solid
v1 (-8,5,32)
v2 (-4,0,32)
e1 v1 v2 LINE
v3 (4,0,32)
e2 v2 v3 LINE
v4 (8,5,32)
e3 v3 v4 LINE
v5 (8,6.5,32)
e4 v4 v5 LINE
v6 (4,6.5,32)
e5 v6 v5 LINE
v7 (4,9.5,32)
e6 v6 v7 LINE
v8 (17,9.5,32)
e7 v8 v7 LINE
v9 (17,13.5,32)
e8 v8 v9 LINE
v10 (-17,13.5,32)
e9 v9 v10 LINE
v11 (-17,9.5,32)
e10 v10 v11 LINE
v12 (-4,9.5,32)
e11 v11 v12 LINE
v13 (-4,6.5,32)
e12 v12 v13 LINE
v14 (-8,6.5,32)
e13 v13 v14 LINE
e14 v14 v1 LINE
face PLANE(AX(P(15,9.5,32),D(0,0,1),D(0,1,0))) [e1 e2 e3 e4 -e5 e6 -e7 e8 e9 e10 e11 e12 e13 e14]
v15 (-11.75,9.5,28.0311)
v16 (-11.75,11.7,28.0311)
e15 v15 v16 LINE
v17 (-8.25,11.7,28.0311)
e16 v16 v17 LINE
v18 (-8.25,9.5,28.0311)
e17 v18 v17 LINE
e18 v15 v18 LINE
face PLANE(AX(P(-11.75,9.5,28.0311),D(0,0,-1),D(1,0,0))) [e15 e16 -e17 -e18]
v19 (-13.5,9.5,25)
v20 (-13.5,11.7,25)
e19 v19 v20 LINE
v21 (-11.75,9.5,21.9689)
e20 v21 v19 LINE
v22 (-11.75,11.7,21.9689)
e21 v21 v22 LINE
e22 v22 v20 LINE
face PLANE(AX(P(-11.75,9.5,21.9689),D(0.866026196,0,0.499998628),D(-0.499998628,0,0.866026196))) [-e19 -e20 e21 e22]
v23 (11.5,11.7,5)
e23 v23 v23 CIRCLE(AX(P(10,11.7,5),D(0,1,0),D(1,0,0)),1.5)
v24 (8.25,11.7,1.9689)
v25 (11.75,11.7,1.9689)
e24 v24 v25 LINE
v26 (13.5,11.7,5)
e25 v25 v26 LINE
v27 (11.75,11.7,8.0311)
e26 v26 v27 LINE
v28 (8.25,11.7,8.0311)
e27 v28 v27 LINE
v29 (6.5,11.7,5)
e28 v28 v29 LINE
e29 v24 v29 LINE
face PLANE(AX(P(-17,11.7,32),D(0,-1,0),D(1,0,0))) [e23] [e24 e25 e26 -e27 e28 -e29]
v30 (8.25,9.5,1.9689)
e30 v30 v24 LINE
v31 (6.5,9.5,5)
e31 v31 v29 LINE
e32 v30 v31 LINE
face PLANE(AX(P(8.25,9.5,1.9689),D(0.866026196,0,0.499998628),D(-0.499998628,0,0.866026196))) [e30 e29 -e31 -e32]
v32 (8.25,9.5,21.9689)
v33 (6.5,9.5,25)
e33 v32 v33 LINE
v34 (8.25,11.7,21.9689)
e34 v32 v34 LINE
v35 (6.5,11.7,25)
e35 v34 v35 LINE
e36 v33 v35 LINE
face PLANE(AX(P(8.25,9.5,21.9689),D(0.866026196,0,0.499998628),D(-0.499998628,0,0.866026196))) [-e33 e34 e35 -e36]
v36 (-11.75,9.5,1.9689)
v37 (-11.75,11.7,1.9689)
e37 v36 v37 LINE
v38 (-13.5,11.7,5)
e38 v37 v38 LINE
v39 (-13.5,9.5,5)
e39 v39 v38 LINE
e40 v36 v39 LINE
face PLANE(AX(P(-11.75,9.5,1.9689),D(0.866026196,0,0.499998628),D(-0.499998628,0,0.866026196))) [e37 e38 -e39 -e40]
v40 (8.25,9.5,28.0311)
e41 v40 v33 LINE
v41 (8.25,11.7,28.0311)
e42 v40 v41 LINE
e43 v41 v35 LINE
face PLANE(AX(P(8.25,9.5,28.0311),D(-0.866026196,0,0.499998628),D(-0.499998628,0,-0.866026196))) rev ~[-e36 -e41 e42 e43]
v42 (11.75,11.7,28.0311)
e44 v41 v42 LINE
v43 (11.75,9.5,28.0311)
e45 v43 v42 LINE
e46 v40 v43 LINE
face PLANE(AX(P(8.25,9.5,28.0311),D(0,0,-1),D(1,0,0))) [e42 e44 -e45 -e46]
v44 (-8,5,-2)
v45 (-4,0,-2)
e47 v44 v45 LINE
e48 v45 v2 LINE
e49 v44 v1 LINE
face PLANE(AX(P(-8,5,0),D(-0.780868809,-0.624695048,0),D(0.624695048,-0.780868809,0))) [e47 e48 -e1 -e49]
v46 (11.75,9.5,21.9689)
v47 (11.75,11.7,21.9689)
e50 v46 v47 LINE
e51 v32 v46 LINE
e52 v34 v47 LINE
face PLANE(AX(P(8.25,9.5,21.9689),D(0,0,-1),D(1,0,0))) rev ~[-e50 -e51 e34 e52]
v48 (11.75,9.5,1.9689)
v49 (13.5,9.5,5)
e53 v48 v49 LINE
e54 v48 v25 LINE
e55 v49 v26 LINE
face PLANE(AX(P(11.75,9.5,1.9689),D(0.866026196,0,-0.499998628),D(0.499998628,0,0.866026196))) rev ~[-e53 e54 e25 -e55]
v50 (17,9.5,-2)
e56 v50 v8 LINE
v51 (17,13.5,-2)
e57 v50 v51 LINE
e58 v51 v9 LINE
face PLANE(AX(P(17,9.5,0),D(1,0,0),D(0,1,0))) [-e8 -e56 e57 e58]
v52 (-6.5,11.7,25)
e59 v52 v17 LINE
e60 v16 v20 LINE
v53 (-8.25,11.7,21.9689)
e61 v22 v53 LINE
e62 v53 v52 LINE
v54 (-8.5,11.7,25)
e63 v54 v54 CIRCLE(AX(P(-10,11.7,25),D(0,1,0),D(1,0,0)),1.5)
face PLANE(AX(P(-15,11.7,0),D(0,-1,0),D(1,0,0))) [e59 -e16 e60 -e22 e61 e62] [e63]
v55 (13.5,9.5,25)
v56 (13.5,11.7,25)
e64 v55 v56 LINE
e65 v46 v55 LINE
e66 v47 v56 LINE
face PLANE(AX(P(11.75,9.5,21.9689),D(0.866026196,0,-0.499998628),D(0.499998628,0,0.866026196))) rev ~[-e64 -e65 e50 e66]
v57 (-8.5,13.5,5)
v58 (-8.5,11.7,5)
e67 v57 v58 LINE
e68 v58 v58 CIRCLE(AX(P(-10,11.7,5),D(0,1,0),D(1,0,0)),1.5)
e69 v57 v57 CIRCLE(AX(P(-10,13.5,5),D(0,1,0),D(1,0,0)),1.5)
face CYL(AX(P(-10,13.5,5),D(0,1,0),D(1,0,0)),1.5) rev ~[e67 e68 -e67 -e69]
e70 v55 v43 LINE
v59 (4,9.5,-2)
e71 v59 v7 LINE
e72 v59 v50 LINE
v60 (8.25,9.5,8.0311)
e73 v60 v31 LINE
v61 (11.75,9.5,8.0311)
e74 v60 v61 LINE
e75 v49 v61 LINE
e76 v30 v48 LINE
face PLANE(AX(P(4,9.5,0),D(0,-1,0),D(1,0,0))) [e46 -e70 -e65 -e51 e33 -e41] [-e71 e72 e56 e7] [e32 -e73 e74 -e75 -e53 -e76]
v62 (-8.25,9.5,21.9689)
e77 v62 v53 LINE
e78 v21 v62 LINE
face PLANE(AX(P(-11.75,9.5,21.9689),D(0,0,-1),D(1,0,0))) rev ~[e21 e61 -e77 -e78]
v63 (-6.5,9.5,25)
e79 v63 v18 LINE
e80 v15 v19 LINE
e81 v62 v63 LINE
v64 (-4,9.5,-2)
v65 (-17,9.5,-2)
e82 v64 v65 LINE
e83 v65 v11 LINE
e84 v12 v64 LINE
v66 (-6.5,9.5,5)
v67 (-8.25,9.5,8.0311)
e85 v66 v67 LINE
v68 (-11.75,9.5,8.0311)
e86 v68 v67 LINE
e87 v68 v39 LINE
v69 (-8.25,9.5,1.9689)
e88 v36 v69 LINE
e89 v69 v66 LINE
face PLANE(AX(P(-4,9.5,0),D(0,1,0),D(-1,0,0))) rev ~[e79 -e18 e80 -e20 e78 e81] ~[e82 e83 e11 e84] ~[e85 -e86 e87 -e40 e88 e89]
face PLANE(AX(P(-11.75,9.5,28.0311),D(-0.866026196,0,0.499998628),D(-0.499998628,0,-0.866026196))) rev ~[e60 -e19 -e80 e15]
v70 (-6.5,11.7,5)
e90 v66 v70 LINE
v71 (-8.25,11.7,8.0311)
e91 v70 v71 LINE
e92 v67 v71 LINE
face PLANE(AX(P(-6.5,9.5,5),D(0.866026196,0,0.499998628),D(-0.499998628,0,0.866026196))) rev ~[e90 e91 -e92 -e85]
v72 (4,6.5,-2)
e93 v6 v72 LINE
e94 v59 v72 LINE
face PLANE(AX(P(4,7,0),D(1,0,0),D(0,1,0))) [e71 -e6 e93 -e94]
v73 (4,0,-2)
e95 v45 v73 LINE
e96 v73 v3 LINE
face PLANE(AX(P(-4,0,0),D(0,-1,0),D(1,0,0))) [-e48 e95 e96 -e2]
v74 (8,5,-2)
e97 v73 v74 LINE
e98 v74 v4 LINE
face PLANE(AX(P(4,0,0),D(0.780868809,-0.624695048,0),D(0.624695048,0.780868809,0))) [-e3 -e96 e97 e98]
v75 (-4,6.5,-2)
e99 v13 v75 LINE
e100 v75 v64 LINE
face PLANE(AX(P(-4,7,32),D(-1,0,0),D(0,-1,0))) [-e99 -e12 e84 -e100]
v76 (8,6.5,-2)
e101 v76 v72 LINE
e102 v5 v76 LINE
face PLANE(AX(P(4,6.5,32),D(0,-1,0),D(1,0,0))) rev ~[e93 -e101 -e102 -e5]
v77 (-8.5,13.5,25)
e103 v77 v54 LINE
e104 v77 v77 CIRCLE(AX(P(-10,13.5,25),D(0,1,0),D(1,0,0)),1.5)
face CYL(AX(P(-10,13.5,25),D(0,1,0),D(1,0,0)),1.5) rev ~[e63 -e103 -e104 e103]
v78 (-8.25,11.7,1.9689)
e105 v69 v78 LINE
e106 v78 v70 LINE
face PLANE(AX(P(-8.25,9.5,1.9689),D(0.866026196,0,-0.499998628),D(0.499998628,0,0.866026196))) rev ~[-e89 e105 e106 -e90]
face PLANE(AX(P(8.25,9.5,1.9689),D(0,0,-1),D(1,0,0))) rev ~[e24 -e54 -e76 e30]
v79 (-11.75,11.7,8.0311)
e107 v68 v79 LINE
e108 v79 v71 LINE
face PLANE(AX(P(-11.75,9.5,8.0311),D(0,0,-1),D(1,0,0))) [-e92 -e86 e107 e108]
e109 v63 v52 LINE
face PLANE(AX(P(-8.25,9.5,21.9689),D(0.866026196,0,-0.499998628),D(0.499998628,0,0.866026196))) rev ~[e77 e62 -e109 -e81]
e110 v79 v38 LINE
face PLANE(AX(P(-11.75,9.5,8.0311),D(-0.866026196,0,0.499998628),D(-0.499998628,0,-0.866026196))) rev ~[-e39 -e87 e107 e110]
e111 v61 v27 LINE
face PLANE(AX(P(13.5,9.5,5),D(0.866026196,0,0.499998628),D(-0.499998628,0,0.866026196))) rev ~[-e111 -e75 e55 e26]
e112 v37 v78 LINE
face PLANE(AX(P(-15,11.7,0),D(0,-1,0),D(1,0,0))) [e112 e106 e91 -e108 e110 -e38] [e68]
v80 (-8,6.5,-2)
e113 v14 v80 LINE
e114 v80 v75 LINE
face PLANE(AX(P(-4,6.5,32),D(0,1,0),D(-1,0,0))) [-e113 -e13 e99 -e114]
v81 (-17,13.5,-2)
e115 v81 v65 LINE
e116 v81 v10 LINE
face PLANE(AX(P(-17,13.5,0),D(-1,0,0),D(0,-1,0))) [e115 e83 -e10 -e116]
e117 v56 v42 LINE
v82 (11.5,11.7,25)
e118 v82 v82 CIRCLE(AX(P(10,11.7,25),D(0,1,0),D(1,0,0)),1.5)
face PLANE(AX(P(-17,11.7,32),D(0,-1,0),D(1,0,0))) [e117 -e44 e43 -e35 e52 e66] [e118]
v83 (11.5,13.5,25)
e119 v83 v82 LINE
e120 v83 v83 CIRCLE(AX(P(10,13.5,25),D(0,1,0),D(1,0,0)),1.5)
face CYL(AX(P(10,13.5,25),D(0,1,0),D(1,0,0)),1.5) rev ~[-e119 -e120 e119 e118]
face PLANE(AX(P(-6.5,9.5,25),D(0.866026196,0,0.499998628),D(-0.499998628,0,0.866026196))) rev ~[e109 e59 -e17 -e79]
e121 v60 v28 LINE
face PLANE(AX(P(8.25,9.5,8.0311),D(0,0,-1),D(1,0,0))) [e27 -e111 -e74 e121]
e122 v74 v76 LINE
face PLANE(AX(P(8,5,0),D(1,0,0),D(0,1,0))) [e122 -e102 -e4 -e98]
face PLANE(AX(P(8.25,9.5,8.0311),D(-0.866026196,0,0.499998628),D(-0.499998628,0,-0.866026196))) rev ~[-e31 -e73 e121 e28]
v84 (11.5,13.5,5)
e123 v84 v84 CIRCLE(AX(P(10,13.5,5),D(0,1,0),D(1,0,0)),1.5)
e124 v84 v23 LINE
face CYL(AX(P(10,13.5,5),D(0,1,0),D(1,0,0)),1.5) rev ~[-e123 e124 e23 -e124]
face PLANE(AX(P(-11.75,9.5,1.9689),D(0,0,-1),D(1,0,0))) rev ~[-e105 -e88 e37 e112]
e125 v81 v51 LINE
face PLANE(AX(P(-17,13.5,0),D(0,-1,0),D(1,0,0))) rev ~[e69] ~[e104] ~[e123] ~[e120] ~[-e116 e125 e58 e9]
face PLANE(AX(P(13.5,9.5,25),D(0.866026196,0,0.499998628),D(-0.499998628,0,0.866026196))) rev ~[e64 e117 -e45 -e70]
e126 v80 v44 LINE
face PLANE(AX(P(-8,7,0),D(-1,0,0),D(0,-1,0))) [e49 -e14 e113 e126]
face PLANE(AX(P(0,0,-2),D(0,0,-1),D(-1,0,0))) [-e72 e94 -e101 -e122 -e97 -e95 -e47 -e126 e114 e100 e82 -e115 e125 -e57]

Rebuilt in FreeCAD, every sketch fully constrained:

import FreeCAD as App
import Part
import Sketcher

V = App.Vector
Q = App.Units.Quantity

doc = App.newDocument("Part")
body = doc.addObject("PartDesign::Body", "Body")

sketch1 = doc.addObject("Sketcher::SketchObject", "Sketch")
body.addObject(sketch1)
sketch1.AttachmentSupport = (doc.XY_Plane, [""])
sketch1.MapMode = "FlatFace"
sketch1.addGeometry(Part.LineSegment(V(-4, 0, 0), V(4, 0, 0)), False)
sketch1.addGeometry(Part.LineSegment(V(4, 0, 0), V(8, 5, 0)), False)
sketch1.addGeometry(Part.LineSegment(V(8, 5, 0), V(8, 7, 0)), False)
sketch1.addGeometry(Part.LineSegment(V(8, 7, 0), V(4, 7, 0)), False)
sketch1.addGeometry(Part.LineSegment(V(4, 7, 0), V(4, 9.5, 0)), False)
sketch1.addGeometry(Part.LineSegment(V(4, 9.5, 0), V(15, 9.5, 0)), False)
sketch1.addGeometry(Part.LineSegment(V(15, 9.5, 0), V(15, 13.5, 0)), False)
sketch1.addGeometry(Part.LineSegment(V(15, 13.5, 0), V(-15, 13.5, 0)), False)
sketch1.addGeometry(Part.LineSegment(V(-15, 13.5, 0), V(-15, 9.5, 0)), False)
sketch1.addGeometry(Part.LineSegment(V(-15, 9.5, 0), V(-4, 9.5, 0)), False)
sketch1.addGeometry(Part.LineSegment(V(-4, 9.5, 0), V(-4, 7, 0)), False)
sketch1.addGeometry(Part.LineSegment(V(-4, 7, 0), V(-8, 7, 0)), False)
sketch1.addGeometry(Part.LineSegment(V(-8, 7, 0), V(-8, 5, 0)), False)
sketch1.addGeometry(Part.LineSegment(V(-8, 5, 0), V(-4, 0, 0)), False)
sketch1.addConstraint(Sketcher.Constraint("Coincident", 0, 2, 1, 1))
sketch1.addConstraint(Sketcher.Constraint("Coincident", 1, 2, 2, 1))
sketch1.addConstraint(Sketcher.Constraint("Coincident", 2, 2, 3, 1))
sketch1.addConstraint(Sketcher.Constraint("Coincident", 3, 2, 4, 1))
sketch1.addConstraint(Sketcher.Constraint("Coincident", 4, 2, 5, 1))
sketch1.addConstraint(Sketcher.Constraint("Coincident", 5, 2, 6, 1))
sketch1.addConstraint(Sketcher.Constraint("Coincident", 6, 2, 7, 1))
sketch1.addConstraint(Sketcher.Constraint("Coincident", 7, 2, 8, 1))
sketch1.addConstraint(Sketcher.Constraint("Coincident", 8, 2, 9, 1))
sketch1.addConstraint(Sketcher.Constraint("Coincident", 9, 2, 10, 1))
sketch1.addConstraint(Sketcher.Constraint("Coincident", 10, 2, 11, 1))
sketch1.addConstraint(Sketcher.Constraint("Coincident", 11, 2, 12, 1))
sketch1.addConstraint(Sketcher.Constraint("Coincident", 12, 2, 13, 1))
sketch1.addConstraint(Sketcher.Constraint("Coincident", 13, 2, 0, 1))
sketch1.addConstraint(Sketcher.Constraint("Horizontal", 0))
sketch1.addConstraint(Sketcher.Constraint("Vertical", 2))
sketch1.addConstraint(Sketcher.Constraint("Horizontal", 3))
sketch1.addConstraint(Sketcher.Constraint("Vertical", 4))
sketch1.addConstraint(Sketcher.Constraint("Horizontal", 5))
sketch1.addConstraint(Sketcher.Constraint("Vertical", 6))
sketch1.addConstraint(Sketcher.Constraint("Horizontal", 7))
sketch1.addConstraint(Sketcher.Constraint("Vertical", 8))
sketch1.addConstraint(Sketcher.Constraint("Horizontal", 9))
sketch1.addConstraint(Sketcher.Constraint("Vertical", 10))
sketch1.addConstraint(Sketcher.Constraint("Horizontal", 11))
sketch1.addConstraint(Sketcher.Constraint("Vertical", 12))
sketch1.addConstraint(Sketcher.Constraint("Symmetric", 0, 2, 13, 2, -1, 1))
sketch1.addConstraint(Sketcher.Constraint("Symmetric", 5, 2, 8, 2, -2))
sketch1.addConstraint(Sketcher.Constraint("Symmetric", 3, 2, 10, 2, -2))
sketch1.addConstraint(Sketcher.Constraint("Symmetric", 1, 2, 12, 2, -2))
sketch1.addConstraint(Sketcher.Constraint("Vertical", 0, 2, 3, 2))
sketch1.addConstraint(Sketcher.Constraint("Equal", 11, 6))
sketch1.addConstraint(Sketcher.Constraint("DistanceX", 3, 2, 3, 1, Q("4 mm")))
sketch1.addConstraint(Sketcher.Constraint("DistanceX", -1, 1, 0, 2, Q("4 mm")))
sketch1.addConstraint(Sketcher.Constraint("DistanceX", 5, 1, 5, 2, Q("11 mm")))
sketch1.addConstraint(Sketcher.Constraint("DistanceY", 2, 1, 2, 2, Q("2 mm")))
sketch1.addConstraint(Sketcher.Constraint("DistanceY", 4, 1, 4, 2, Q("2.5 mm")))
sketch1.addConstraint(Sketcher.Constraint("DistanceY", -1, 1, 1, 2, Q("5 mm")))
pad1 = doc.addObject("PartDesign::Pad", "Pad")
body.addObject(pad1)
pad1.Profile = sketch1
pad1.Length = 30

sketch2 = doc.addObject("Sketcher::SketchObject", "Sketch001")
body.addObject(sketch2)
sketch2.AttachmentSupport = (doc.XZ_Plane, [""])
sketch2.MapMode = "FlatFace"
sketch2.AttachmentOffset = App.Placement(V(0, 0, -13.5), App.Rotation())
sketch2.addGeometry(Part.Circle(V(-10, 5, 0), V(0, 0, 1), 1.5), False)
sketch2.addGeometry(Part.Circle(V(-10, 25, 0), V(0, 0, 1), 1.5), False)
sketch2.addGeometry(Part.Circle(V(10, 25, 0), V(0, 0, 1), 1.5), False)
sketch2.addGeometry(Part.Circle(V(10, 5, 0), V(0, 0, 1), 1.5), False)
sketch2.addConstraint(Sketcher.Constraint("Equal", 0, 1))
sketch2.addConstraint(Sketcher.Constraint("Equal", 1, 2))
sketch2.addConstraint(Sketcher.Constraint("Equal", 2, 3))
sketch2.addConstraint(Sketcher.Constraint("Symmetric", 1, 3, 2, 3, -2))
sketch2.addConstraint(Sketcher.Constraint("Symmetric", 0, 3, 3, 3, -2))
sketch2.addConstraint(Sketcher.Constraint("Vertical", 0, 3, 1, 3))
sketch2.addConstraint(Sketcher.Constraint("Diameter", 0, Q("3 mm")))
sketch2.addConstraint(Sketcher.Constraint("DistanceX", 0, 3, -1, 1, Q("10 mm")))
sketch2.addConstraint(Sketcher.Constraint("DistanceY", -1, 1, 0, 3, Q("5 mm")))
sketch2.addConstraint(Sketcher.Constraint("DistanceY", -1, 1, 1, 3, Q("25 mm")))
pocket1 = doc.addObject("PartDesign::Pocket", "Pocket")
body.addObject(pocket1)
pocket1.Profile = sketch2
pocket1.Length = 5
pocket1.Reversed = True

sketch3 = doc.addObject("Sketcher::SketchObject", "Sketch002")
body.addObject(sketch3)
sketch3.AttachmentSupport = (doc.XZ_Plane, [""])
sketch3.MapMode = "FlatFace"
sketch3.AttachmentOffset = App.Placement(V(0, 0, -9.5), App.Rotation())
sketch3.addGeometry(Part.LineSegment(V(-8.5, 7.5981, 0), V(-11.5, 7.5981, 0)), False)
sketch3.addGeometry(Part.LineSegment(V(-11.5, 7.5981, 0), V(-13, 5, 0)), False)
sketch3.addGeometry(Part.LineSegment(V(-13, 5, 0), V(-11.5, 2.4019, 0)), False)
sketch3.addGeometry(Part.LineSegment(V(-11.5, 2.4019, 0), V(-8.5, 2.4019, 0)), False)
sketch3.addGeometry(Part.LineSegment(V(-8.5, 2.4019, 0), V(-7, 5, 0)), False)
sketch3.addGeometry(Part.LineSegment(V(-7, 5, 0), V(-8.5, 7.5981, 0)), False)
sketch3.addGeometry(Part.LineSegment(V(-8.5, 27.5981, 0), V(-11.5, 27.5981, 0)), False)
sketch3.addGeometry(Part.LineSegment(V(-11.5, 27.5981, 0), V(-13, 25, 0)), False)
sketch3.addGeometry(Part.LineSegment(V(-13, 25, 0), V(-11.5, 22.4019, 0)), False)
sketch3.addGeometry(Part.LineSegment(V(-11.5, 22.4019, 0), V(-8.5, 22.4019, 0)), False)
sketch3.addGeometry(Part.LineSegment(V(-8.5, 22.4019, 0), V(-7, 25, 0)), False)
sketch3.addGeometry(Part.LineSegment(V(-7, 25, 0), V(-8.5, 27.5981, 0)), False)
sketch3.addGeometry(Part.LineSegment(V(11.5, 7.5981, 0), V(8.5, 7.5981, 0)), False)
sketch3.addGeometry(Part.LineSegment(V(8.5, 7.5981, 0), V(7, 5, 0)), False)
sketch3.addGeometry(Part.LineSegment(V(7, 5, 0), V(8.5, 2.4019, 0)), False)
sketch3.addGeometry(Part.LineSegment(V(8.5, 2.4019, 0), V(11.5, 2.4019, 0)), False)
sketch3.addGeometry(Part.LineSegment(V(11.5, 2.4019, 0), V(13, 5, 0)), False)
sketch3.addGeometry(Part.LineSegment(V(13, 5, 0), V(11.5, 7.5981, 0)), False)
sketch3.addGeometry(Part.LineSegment(V(11.5, 27.5981, 0), V(8.5, 27.5981, 0)), False)
sketch3.addGeometry(Part.LineSegment(V(8.5, 27.5981, 0), V(7, 25, 0)), False)
sketch3.addGeometry(Part.LineSegment(V(7, 25, 0), V(8.5, 22.4019, 0)), False)
sketch3.addGeometry(Part.LineSegment(V(8.5, 22.4019, 0), V(11.5, 22.4019, 0)), False)
sketch3.addGeometry(Part.LineSegment(V(11.5, 22.4019, 0), V(13, 25, 0)), False)
sketch3.addGeometry(Part.LineSegment(V(13, 25, 0), V(11.5, 27.5981, 0)), False)
sketch3.addConstraint(Sketcher.Constraint("Coincident", 0, 2, 1, 1))
sketch3.addConstraint(Sketcher.Constraint("Coincident", 1, 2, 2, 1))
sketch3.addConstraint(Sketcher.Constraint("Coincident", 2, 2, 3, 1))
sketch3.addConstraint(Sketcher.Constraint("Coincident", 3, 2, 4, 1))
sketch3.addConstraint(Sketcher.Constraint("Coincident", 4, 2, 5, 1))
sketch3.addConstraint(Sketcher.Constraint("Coincident", 5, 2, 0, 1))
sketch3.addConstraint(Sketcher.Constraint("Coincident", 6, 2, 7, 1))
sketch3.addConstraint(Sketcher.Constraint("Coincident", 7, 2, 8, 1))
sketch3.addConstraint(Sketcher.Constraint("Coincident", 8, 2, 9, 1))
sketch3.addConstraint(Sketcher.Constraint("Coincident", 9, 2, 10, 1))
sketch3.addConstraint(Sketcher.Constraint("Coincident", 10, 2, 11, 1))
sketch3.addConstraint(Sketcher.Constraint("Coincident", 11, 2, 6, 1))
sketch3.addConstraint(Sketcher.Constraint("Coincident", 12, 2, 13, 1))
sketch3.addConstraint(Sketcher.Constraint("Coincident", 13, 2, 14, 1))
sketch3.addConstraint(Sketcher.Constraint("Coincident", 14, 2, 15, 1))
sketch3.addConstraint(Sketcher.Constraint("Coincident", 15, 2, 16, 1))
sketch3.addConstraint(Sketcher.Constraint("Coincident", 16, 2, 17, 1))
sketch3.addConstraint(Sketcher.Constraint("Coincident", 17, 2, 12, 1))
sketch3.addConstraint(Sketcher.Constraint("Coincident", 18, 2, 19, 1))
sketch3.addConstraint(Sketcher.Constraint("Coincident", 19, 2, 20, 1))
sketch3.addConstraint(Sketcher.Constraint("Coincident", 20, 2, 21, 1))
sketch3.addConstraint(Sketcher.Constraint("Coincident", 21, 2, 22, 1))
sketch3.addConstraint(Sketcher.Constraint("Coincident", 22, 2, 23, 1))
sketch3.addConstraint(Sketcher.Constraint("Coincident", 23, 2, 18, 1))
sketch3.addConstraint(Sketcher.Constraint("Horizontal", 0))
sketch3.addConstraint(Sketcher.Constraint("Horizontal", 3))
sketch3.addConstraint(Sketcher.Constraint("Horizontal", 6))
sketch3.addConstraint(Sketcher.Constraint("Horizontal", 9))
sketch3.addConstraint(Sketcher.Constraint("Horizontal", 12))
sketch3.addConstraint(Sketcher.Constraint("Horizontal", 15))
sketch3.addConstraint(Sketcher.Constraint("Horizontal", 18))
sketch3.addConstraint(Sketcher.Constraint("Horizontal", 21))
sketch3.addConstraint(Sketcher.Constraint("Symmetric", 5, 2, 12, 2, -2))
sketch3.addConstraint(Sketcher.Constraint("Symmetric", 4, 2, 13, 2, -2))
sketch3.addConstraint(Sketcher.Constraint("Symmetric", 3, 2, 14, 2, -2))
sketch3.addConstraint(Sketcher.Constraint("Symmetric", 1, 2, 16, 2, -2))
sketch3.addConstraint(Sketcher.Constraint("Symmetric", 11, 2, 18, 2, -2))
sketch3.addConstraint(Sketcher.Constraint("Symmetric", 10, 2, 19, 2, -2))
sketch3.addConstraint(Sketcher.Constraint("Symmetric", 9, 2, 20, 2, -2))
sketch3.addConstraint(Sketcher.Constraint("Symmetric", 7, 2, 22, 2, -2))
sketch3.addConstraint(Sketcher.Constraint("Parallel", 1, 4))
sketch3.addConstraint(Sketcher.Constraint("Parallel", 2, 5))
sketch3.addConstraint(Sketcher.Constraint("Parallel", 4, 7))
sketch3.addConstraint(Sketcher.Constraint("Parallel", 5, 8))
sketch3.addConstraint(Sketcher.Constraint("Parallel", 7, 10))
sketch3.addConstraint(Sketcher.Constraint("Parallel", 8, 11))
sketch3.addConstraint(Sketcher.Constraint("Parallel", 10, 13))
sketch3.addConstraint(Sketcher.Constraint("Parallel", 13, 16))
sketch3.addConstraint(Sketcher.Constraint("Parallel", 14, 17))
sketch3.addConstraint(Sketcher.Constraint("Parallel", 19, 22))
sketch3.addConstraint(Sketcher.Constraint("Parallel", 20, 23))
sketch3.addConstraint(Sketcher.Constraint("Horizontal", 1, 2, 4, 2))
sketch3.addConstraint(Sketcher.Constraint("Horizontal", 7, 2, 10, 2))
sketch3.addConstraint(Sketcher.Constraint("Vertical", 0, 2, 2, 2))
sketch3.addConstraint(Sketcher.Constraint("Vertical", 2, 2, 6, 2))
sketch3.addConstraint(Sketcher.Constraint("Vertical", 1, 2, 7, 2))
sketch3.addConstraint(Sketcher.Constraint("Vertical", 6, 2, 8, 2))
sketch3.addConstraint(Sketcher.Constraint("Vertical", 5, 2, 9, 2))
sketch3.addConstraint(Sketcher.Constraint("DistanceX", 0, 2, 0, 1, Q("3 mm")))
sketch3.addConstraint(Sketcher.Constraint("Angle", 1, Q("-119.9998 deg")))
sketch3.addConstraint(Sketcher.Constraint("Distance", 1, Q("3 mm")))
sketch3.addConstraint(Sketcher.Constraint("DistanceX", 1, 2, -1, 1, Q("13 mm")))
sketch3.addConstraint(Sketcher.Constraint("DistanceY", -1, 1, 1, 2, Q("5 mm")))
sketch3.addConstraint(Sketcher.Constraint("DistanceY", -1, 1, 7, 2, Q("25 mm")))
pocket2 = doc.addObject("PartDesign::Pocket", "Pocket001")
body.addObject(pocket2)
pocket2.Profile = sketch3
pocket2.Length = 2.2

sketch4 = doc.addObject("Sketcher::SketchObject", "Sketch003")
body.addObject(sketch4)
sketch4.AttachmentSupport = (doc.XY_Plane, [""])
sketch4.MapMode = "FlatFace"
sketch4.AttachmentOffset = App.Placement(V(0, 0, 30), App.Rotation())
sketch4.addGeometry(Part.LineSegment(V(-4, 7, 0), V(-8, 7, 0)), False)
sketch4.addGeometry(Part.LineSegment(V(-8, 7, 0), V(-8, 5, 0)), False)
sketch4.addGeometry(Part.LineSegment(V(-8, 5, 0), V(-4, 0, 0)), False)
sketch4.addGeometry(Part.LineSegment(V(-4, 0, 0), V(4, 0, 0)), False)
sketch4.addGeometry(Part.LineSegment(V(4, 0, 0), V(8, 5, 0)), False)
sketch4.addGeometry(Part.LineSegment(V(8, 5, 0), V(8, 7, 0)), False)
sketch4.addGeometry(Part.LineSegment(V(8, 7, 0), V(4, 7, 0)), False)
sketch4.addGeometry(Part.LineSegment(V(4, 7, 0), V(4, 9.5, 0)), False)
sketch4.addGeometry(Part.LineSegment(V(4, 9.5, 0), V(15, 9.5, 0)), False)
sketch4.addGeometry(Part.LineSegment(V(15, 9.5, 0), V(15, 13.5, 0)), False)
sketch4.addGeometry(Part.LineSegment(V(15, 13.5, 0), V(-15, 13.5, 0)), False)
sketch4.addGeometry(Part.LineSegment(V(-15, 13.5, 0), V(-15, 9.5, 0)), False)
sketch4.addGeometry(Part.LineSegment(V(-15, 9.5, 0), V(-4, 9.5, 0)), False)
sketch4.addGeometry(Part.LineSegment(V(-4, 9.5, 0), V(-4, 7, 0)), False)
sketch4.addConstraint(Sketcher.Constraint("Coincident", 0, 2, 1, 1))
sketch4.addConstraint(Sketcher.Constraint("Coincident", 1, 2, 2, 1))
sketch4.addConstraint(Sketcher.Constraint("Coincident", 2, 2, 3, 1))
sketch4.addConstraint(Sketcher.Constraint("Coincident", 3, 2, 4, 1))
sketch4.addConstraint(Sketcher.Constraint("Coincident", 4, 2, 5, 1))
sketch4.addConstraint(Sketcher.Constraint("Coincident", 5, 2, 6, 1))
sketch4.addConstraint(Sketcher.Constraint("Coincident", 6, 2, 7, 1))
sketch4.addConstraint(Sketcher.Constraint("Coincident", 7, 2, 8, 1))
sketch4.addConstraint(Sketcher.Constraint("Coincident", 8, 2, 9, 1))
sketch4.addConstraint(Sketcher.Constraint("Coincident", 9, 2, 10, 1))
sketch4.addConstraint(Sketcher.Constraint("Coincident", 10, 2, 11, 1))
sketch4.addConstraint(Sketcher.Constraint("Coincident", 11, 2, 12, 1))
sketch4.addConstraint(Sketcher.Constraint("Coincident", 12, 2, 13, 1))
sketch4.addConstraint(Sketcher.Constraint("Coincident", 13, 2, 0, 1))
sketch4.addConstraint(Sketcher.Constraint("Horizontal", 0))
sketch4.addConstraint(Sketcher.Constraint("Vertical", 1))
sketch4.addConstraint(Sketcher.Constraint("Horizontal", 3))
sketch4.addConstraint(Sketcher.Constraint("Vertical", 5))
sketch4.addConstraint(Sketcher.Constraint("Horizontal", 6))
sketch4.addConstraint(Sketcher.Constraint("Vertical", 7))
sketch4.addConstraint(Sketcher.Constraint("Horizontal", 8))
sketch4.addConstraint(Sketcher.Constraint("Vertical", 9))
sketch4.addConstraint(Sketcher.Constraint("Horizontal", 10))
sketch4.addConstraint(Sketcher.Constraint("Vertical", 11))
sketch4.addConstraint(Sketcher.Constraint("Horizontal", 12))
sketch4.addConstraint(Sketcher.Constraint("Vertical", 13))
sketch4.addConstraint(Sketcher.Constraint("Symmetric", 2, 2, 3, 2, -1, 1))
sketch4.addConstraint(Sketcher.Constraint("Symmetric", 1, 2, 4, 2, -2))
sketch4.addConstraint(Sketcher.Constraint("Symmetric", 8, 2, 11, 2, -2))
sketch4.addConstraint(Sketcher.Constraint("Symmetric", 6, 2, 13, 2, -2))
sketch4.addConstraint(Sketcher.Constraint("Vertical", 3, 2, 6, 2))
sketch4.addConstraint(Sketcher.Constraint("Equal", 6, 9))
sketch4.addConstraint(Sketcher.Constraint("DistanceX", 0, 2, 0, 1, Q("4 mm")))
sketch4.addConstraint(Sketcher.Constraint("DistanceX", 3, 1, 3, 2, Q("8 mm")))
sketch4.addConstraint(Sketcher.Constraint("DistanceX", 8, 1, 8, 2, Q("11 mm")))
sketch4.addConstraint(Sketcher.Constraint("DistanceY", 1, 2, 1, 1, Q("2 mm")))
sketch4.addConstraint(Sketcher.Constraint("DistanceY", 7, 1, 7, 2, Q("2.5 mm")))
sketch4.addConstraint(Sketcher.Constraint("DistanceY", -1, 1, 0, 2, Q("7 mm")))
pad2 = doc.addObject("PartDesign::Pad", "Pad001")
body.addObject(pad2)
pad2.Profile = sketch4
pad2.Length = 2

sketch5 = doc.addObject("Sketcher::SketchObject", "Sketch004")
body.addObject(sketch5)
sketch5.AttachmentSupport = (doc.YZ_Plane, [""])
sketch5.MapMode = "FlatFace"
sketch5.AttachmentOffset = App.Placement(V(0, 0, -15), App.Rotation())
sketch5.addGeometry(Part.LineSegment(V(13.5, 32, 0), V(13.5, 0, 0)), False)
sketch5.addGeometry(Part.LineSegment(V(13.5, 0, 0), V(9.5, 0, 0)), False)
sketch5.addGeometry(Part.LineSegment(V(9.5, 0, 0), V(9.5, 32, 0)), False)
sketch5.addGeometry(Part.LineSegment(V(9.5, 32, 0), V(13.5, 32, 0)), False)
sketch5.addConstraint(Sketcher.Constraint("Coincident", 0, 2, 1, 1))
sketch5.addConstraint(Sketcher.Constraint("Coincident", 1, 2, 2, 1))
sketch5.addConstraint(Sketcher.Constraint("Coincident", 2, 2, 3, 1))
sketch5.addConstraint(Sketcher.Constraint("Coincident", 3, 2, 0, 1))
sketch5.addConstraint(Sketcher.Constraint("Vertical", 0))
sketch5.addConstraint(Sketcher.Constraint("Horizontal", 1))
sketch5.addConstraint(Sketcher.Constraint("Vertical", 2))
sketch5.addConstraint(Sketcher.Constraint("Horizontal", 3))
sketch5.addConstraint(Sketcher.Constraint("PointOnObject", 0, 2, -1))
sketch5.addConstraint(Sketcher.Constraint("DistanceX", 1, 2, 1, 1, Q("4 mm")))
sketch5.addConstraint(Sketcher.Constraint("DistanceY", 0, 2, 0, 1, Q("32 mm")))
sketch5.addConstraint(Sketcher.Constraint("DistanceX", -1, 1, 0, 2, Q("13.5 mm")))
pad3 = doc.addObject("PartDesign::Pad", "Pad002")
body.addObject(pad3)
pad3.Profile = sketch5
pad3.Length = 2
pad3.Reversed = True

sketch6 = doc.addObject("Sketcher::SketchObject", "Sketch005")
body.addObject(sketch6)
sketch6.AttachmentSupport = (doc.YZ_Plane, [""])
sketch6.MapMode = "FlatFace"
sketch6.AttachmentOffset = App.Placement(V(0, 0, 15), App.Rotation())
sketch6.addGeometry(Part.LineSegment(V(9.5, 32, 0), V(9.5, 0, 0)), False)
sketch6.addGeometry(Part.LineSegment(V(9.5, 0, 0), V(13.5, 0, 0)), False)
sketch6.addGeometry(Part.LineSegment(V(13.5, 0, 0), V(13.5, 32, 0)), False)
sketch6.addGeometry(Part.LineSegment(V(13.5, 32, 0), V(9.5, 32, 0)), False)
sketch6.addConstraint(Sketcher.Constraint("Coincident", 0, 2, 1, 1))
sketch6.addConstraint(Sketcher.Constraint("Coincident", 1, 2, 2, 1))
sketch6.addConstraint(Sketcher.Constraint("Coincident", 2, 2, 3, 1))
sketch6.addConstraint(Sketcher.Constraint("Coincident", 3, 2, 0, 1))
sketch6.addConstraint(Sketcher.Constraint("Vertical", 0))
sketch6.addConstraint(Sketcher.Constraint("Horizontal", 1))
sketch6.addConstraint(Sketcher.Constraint("Vertical", 2))
sketch6.addConstraint(Sketcher.Constraint("Horizontal", 3))
sketch6.addConstraint(Sketcher.Constraint("PointOnObject", 0, 2, -1))
sketch6.addConstraint(Sketcher.Constraint("DistanceX", 1, 1, 1, 2, Q("4 mm")))
sketch6.addConstraint(Sketcher.Constraint("DistanceY", 0, 2, 0, 1, Q("32 mm")))
sketch6.addConstraint(Sketcher.Constraint("DistanceX", -1, 1, 0, 2, Q("9.5 mm")))
pad4 = doc.addObject("PartDesign::Pad", "Pad003")
body.addObject(pad4)
pad4.Profile = sketch6
pad4.Length = 2

sketch7 = doc.addObject("Sketcher::SketchObject", "Sketch006")
body.addObject(sketch7)
sketch7.AttachmentSupport = (doc.XY_Plane, [""])
sketch7.MapMode = "FlatFace"
sketch7.addGeometry(Part.LineSegment(V(-8, 5, 0), V(-8, 7, 0)), False)
sketch7.addGeometry(Part.LineSegment(V(-8, 7, 0), V(-4, 7, 0)), False)
sketch7.addGeometry(Part.LineSegment(V(-4, 7, 0), V(-4, 9.5, 0)), False)
sketch7.addGeometry(Part.LineSegment(V(-4, 9.5, 0), V(-17, 9.5, 0)), False)
sketch7.addGeometry(Part.LineSegment(V(-17, 9.5, 0), V(-17, 13.5, 0)), False)
sketch7.addGeometry(Part.LineSegment(V(-17, 13.5, 0), V(17, 13.5, 0)), False)
sketch7.addGeometry(Part.LineSegment(V(17, 13.5, 0), V(17, 9.5, 0)), False)
sketch7.addGeometry(Part.LineSegment(V(17, 9.5, 0), V(4, 9.5, 0)), False)
sketch7.addGeometry(Part.LineSegment(V(4, 9.5, 0), V(4, 7, 0)), False)
sketch7.addGeometry(Part.LineSegment(V(4, 7, 0), V(8, 7, 0)), False)
sketch7.addGeometry(Part.LineSegment(V(8, 7, 0), V(8, 5, 0)), False)
sketch7.addGeometry(Part.LineSegment(V(8, 5, 0), V(4, 0, 0)), False)
sketch7.addGeometry(Part.LineSegment(V(4, 0, 0), V(-4, 0, 0)), False)
sketch7.addGeometry(Part.LineSegment(V(-4, 0, 0), V(-8, 5, 0)), False)
sketch7.addConstraint(Sketcher.Constraint("Coincident", 0, 2, 1, 1))
sketch7.addConstraint(Sketcher.Constraint("Coincident", 1, 2, 2, 1))
sketch7.addConstraint(Sketcher.Constraint("Coincident", 2, 2, 3, 1))
sketch7.addConstraint(Sketcher.Constraint("Coincident", 3, 2, 4, 1))
sketch7.addConstraint(Sketcher.Constraint("Coincident", 4, 2, 5, 1))
sketch7.addConstraint(Sketcher.Constraint("Coincident", 5, 2, 6, 1))
sketch7.addConstraint(Sketcher.Constraint("Coincident", 6, 2, 7, 1))
sketch7.addConstraint(Sketcher.Constraint("Coincident", 7, 2, 8, 1))
sketch7.addConstraint(Sketcher.Constraint("Coincident", 8, 2, 9, 1))
sketch7.addConstraint(Sketcher.Constraint("Coincident", 9, 2, 10, 1))
sketch7.addConstraint(Sketcher.Constraint("Coincident", 10, 2, 11, 1))
sketch7.addConstraint(Sketcher.Constraint("Coincident", 11, 2, 12, 1))
sketch7.addConstraint(Sketcher.Constraint("Coincident", 12, 2, 13, 1))
sketch7.addConstraint(Sketcher.Constraint("Coincident", 13, 2, 0, 1))
sketch7.addConstraint(Sketcher.Constraint("Vertical", 0))
sketch7.addConstraint(Sketcher.Constraint("Horizontal", 1))
sketch7.addConstraint(Sketcher.Constraint("Vertical", 2))
sketch7.addConstraint(Sketcher.Constraint("Horizontal", 3))
sketch7.addConstraint(Sketcher.Constraint("Vertical", 4))
sketch7.addConstraint(Sketcher.Constraint("Horizontal", 5))
sketch7.addConstraint(Sketcher.Constraint("Vertical", 6))
sketch7.addConstraint(Sketcher.Constraint("Horizontal", 7))
sketch7.addConstraint(Sketcher.Constraint("Vertical", 8))
sketch7.addConstraint(Sketcher.Constraint("Horizontal", 9))
sketch7.addConstraint(Sketcher.Constraint("Vertical", 10))
sketch7.addConstraint(Sketcher.Constraint("Horizontal", 12))
sketch7.addConstraint(Sketcher.Constraint("Symmetric", 11, 2, 12, 2, -1, 1))
sketch7.addConstraint(Sketcher.Constraint("Symmetric", 3, 2, 6, 2, -2))
sketch7.addConstraint(Sketcher.Constraint("Symmetric", 1, 2, 8, 2, -2))
sketch7.addConstraint(Sketcher.Constraint("Symmetric", 10, 2, 13, 2, -2))
sketch7.addConstraint(Sketcher.Constraint("Vertical", 8, 2, 11, 2))
sketch7.addConstraint(Sketcher.Constraint("Equal", 9, 4))
sketch7.addConstraint(Sketcher.Constraint("DistanceX", 1, 1, 1, 2, Q("4 mm")))
sketch7.addConstraint(Sketcher.Constraint("DistanceX", 3, 2, 3, 1, Q("13 mm")))
sketch7.addConstraint(Sketcher.Constraint("DistanceX", 5, 1, 5, 2, Q("34 mm")))
sketch7.addConstraint(Sketcher.Constraint("DistanceY", 0, 1, 0, 2, Q("2 mm")))
sketch7.addConstraint(Sketcher.Constraint("DistanceY", 2, 1, 2, 2, Q("2.5 mm")))
sketch7.addConstraint(Sketcher.Constraint("DistanceY", -1, 1, 0, 2, Q("7 mm")))
pad5 = doc.addObject("PartDesign::Pad", "Pad004")
body.addObject(pad5)
pad5.Profile = sketch7
pad5.Length = 2
pad5.Reversed = True

sketch8 = doc.addObject("Sketcher::SketchObject", "Sketch007")
body.addObject(sketch8)
sketch8.AttachmentSupport = (doc.XY_Plane, [""])
sketch8.MapMode = "FlatFace"
sketch8.AttachmentOffset = App.Placement(V(0, 0, 32), App.Rotation())
sketch8.addGeometry(Part.LineSegment(V(-4, 6.5, 0), V(-4, 7, 0)), False)
sketch8.addGeometry(Part.LineSegment(V(-4, 7, 0), V(-8, 7, 0)), False)
sketch8.addGeometry(Part.LineSegment(V(-8, 7, 0), V(-8, 6.5, 0)), False)
sketch8.addGeometry(Part.LineSegment(V(-8, 6.5, 0), V(-4, 6.5, 0)), False)
sketch8.addConstraint(Sketcher.Constraint("Coincident", 0, 2, 1, 1))
sketch8.addConstraint(Sketcher.Constraint("Coincident", 1, 2, 2, 1))
sketch8.addConstraint(Sketcher.Constraint("Coincident", 2, 2, 3, 1))
sketch8.addConstraint(Sketcher.Constraint("Coincident", 3, 2, 0, 1))
sketch8.addConstraint(Sketcher.Constraint("Vertical", 0))
sketch8.addConstraint(Sketcher.Constraint("Horizontal", 1))
sketch8.addConstraint(Sketcher.Constraint("Vertical", 2))
sketch8.addConstraint(Sketcher.Constraint("Horizontal", 3))
sketch8.addConstraint(Sketcher.Constraint("DistanceY", 0, 1, 0, 2, Q("0.5 mm")))
sketch8.addConstraint(Sketcher.Constraint("DistanceX", 1, 2, 1, 1, Q("4 mm")))
sketch8.addConstraint(Sketcher.Constraint("DistanceX", 0, 2, -1, 1, Q("4 mm")))
sketch8.addConstraint(Sketcher.Constraint("DistanceY", -1, 1, 0, 2, Q("7 mm")))
pocket3 = doc.addObject("PartDesign::Pocket", "Pocket002")
body.addObject(pocket3)
pocket3.Profile = sketch8
pocket3.Length = 40

sketch9 = doc.addObject("Sketcher::SketchObject", "Sketch008")
body.addObject(sketch9)
sketch9.AttachmentSupport = (doc.XY_Plane, [""])
sketch9.MapMode = "FlatFace"
sketch9.AttachmentOffset = App.Placement(V(0, 0, 32), App.Rotation())
sketch9.addGeometry(Part.LineSegment(V(8, 7, 0), V(4, 7, 0)), False)
sketch9.addGeometry(Part.LineSegment(V(4, 7, 0), V(4, 6.5, 0)), False)
sketch9.addGeometry(Part.LineSegment(V(4, 6.5, 0), V(8, 6.5, 0)), False)
sketch9.addGeometry(Part.LineSegment(V(8, 6.5, 0), V(8, 7, 0)), False)
sketch9.addConstraint(Sketcher.Constraint("Coincident", 0, 2, 1, 1))
sketch9.addConstraint(Sketcher.Constraint("Coincident", 1, 2, 2, 1))
sketch9.addConstraint(Sketcher.Constraint("Coincident", 2, 2, 3, 1))
sketch9.addConstraint(Sketcher.Constraint("Coincident", 3, 2, 0, 1))
sketch9.addConstraint(Sketcher.Constraint("Horizontal", 0))
sketch9.addConstraint(Sketcher.Constraint("Vertical", 1))
sketch9.addConstraint(Sketcher.Constraint("Horizontal", 2))
sketch9.addConstraint(Sketcher.Constraint("Vertical", 3))
sketch9.addConstraint(Sketcher.Constraint("DistanceY", 1, 2, 1, 1, Q("0.5 mm")))
sketch9.addConstraint(Sketcher.Constraint("DistanceX", 0, 2, 0, 1, Q("4 mm")))
sketch9.addConstraint(Sketcher.Constraint("DistanceX", -1, 1, 0, 2, Q("4 mm")))
sketch9.addConstraint(Sketcher.Constraint("DistanceY", -1, 1, 0, 2, Q("7 mm")))
pocket4 = doc.addObject("PartDesign::Pocket", "Pocket003")
body.addObject(pocket4)
pocket4.Profile = sketch9
pocket4.Length = 40

sketch10 = doc.addObject("Sketcher::SketchObject", "Sketch009")
body.addObject(sketch10)
sketch10.AttachmentSupport = (doc.XZ_Plane, [""])
sketch10.MapMode = "FlatFace"
sketch10.AttachmentOffset = App.Placement(V(0, 0, -9.5), App.Rotation())
sketch10.addGeometry(Part.LineSegment(V(-13.5, 5, 0), V(-11.75, 1.9689, 0)), False)
sketch10.addGeometry(Part.LineSegment(V(-11.75, 1.9689, 0), V(-8.25, 1.9689, 0)), False)
sketch10.addGeometry(Part.LineSegment(V(-8.25, 1.9689, 0), V(-6.5, 5, 0)), False)
sketch10.addGeometry(Part.LineSegment(V(-6.5, 5, 0), V(-8.25, 8.0311, 0)), False)
sketch10.addGeometry(Part.LineSegment(V(-8.25, 8.0311, 0), V(-11.75, 8.0311, 0)), False)
sketch10.addGeometry(Part.LineSegment(V(-11.75, 8.0311, 0), V(-13.5, 5, 0)), False)
sketch10.addGeometry(Part.LineSegment(V(-13.5, 25, 0), V(-11.75, 21.9689, 0)), False)
sketch10.addGeometry(Part.LineSegment(V(-11.75, 21.9689, 0), V(-8.25, 21.9689, 0)), False)
sketch10.addGeometry(Part.LineSegment(V(-8.25, 21.9689, 0), V(-6.5, 25, 0)), False)
sketch10.addGeometry(Part.LineSegment(V(-6.5, 25, 0), V(-8.25, 28.0311, 0)), False)
sketch10.addGeometry(Part.LineSegment(V(-8.25, 28.0311, 0), V(-11.75, 28.0311, 0)), False)
sketch10.addGeometry(Part.LineSegment(V(-11.75, 28.0311, 0), V(-13.5, 25, 0)), False)
sketch10.addGeometry(Part.LineSegment(V(6.5, 25, 0), V(8.25, 21.9689, 0)), False)
sketch10.addGeometry(Part.LineSegment(V(8.25, 21.9689, 0), V(11.75, 21.9689, 0)), False)
sketch10.addGeometry(Part.LineSegment(V(11.75, 21.9689, 0), V(13.5, 25, 0)), False)
sketch10.addGeometry(Part.LineSegment(V(13.5, 25, 0), V(11.75, 28.0311, 0)), False)
sketch10.addGeometry(Part.LineSegment(V(11.75, 28.0311, 0), V(8.25, 28.0311, 0)), False)
sketch10.addGeometry(Part.LineSegment(V(8.25, 28.0311, 0), V(6.5, 25, 0)), False)
sketch10.addGeometry(Part.LineSegment(V(6.5, 5, 0), V(8.25, 1.9689, 0)), False)
sketch10.addGeometry(Part.LineSegment(V(8.25, 1.9689, 0), V(11.75, 1.9689, 0)), False)
sketch10.addGeometry(Part.LineSegment(V(11.75, 1.9689, 0), V(13.5, 5, 0)), False)
sketch10.addGeometry(Part.LineSegment(V(13.5, 5, 0), V(11.75, 8.0311, 0)), False)
sketch10.addGeometry(Part.LineSegment(V(11.75, 8.0311, 0), V(8.25, 8.0311, 0)), False)
sketch10.addGeometry(Part.LineSegment(V(8.25, 8.0311, 0), V(6.5, 5, 0)), False)
sketch10.addConstraint(Sketcher.Constraint("Coincident", 0, 2, 1, 1))
sketch10.addConstraint(Sketcher.Constraint("Coincident", 1, 2, 2, 1))
sketch10.addConstraint(Sketcher.Constraint("Coincident", 2, 2, 3, 1))
sketch10.addConstraint(Sketcher.Constraint("Coincident", 3, 2, 4, 1))
sketch10.addConstraint(Sketcher.Constraint("Coincident", 4, 2, 5, 1))
sketch10.addConstraint(Sketcher.Constraint("Coincident", 5, 2, 0, 1))
sketch10.addConstraint(Sketcher.Constraint("Coincident", 6, 2, 7, 1))
sketch10.addConstraint(Sketcher.Constraint("Coincident", 7, 2, 8, 1))
sketch10.addConstraint(Sketcher.Constraint("Coincident", 8, 2, 9, 1))
sketch10.addConstraint(Sketcher.Constraint("Coincident", 9, 2, 10, 1))
sketch10.addConstraint(Sketcher.Constraint("Coincident", 10, 2, 11, 1))
sketch10.addConstraint(Sketcher.Constraint("Coincident", 11, 2, 6, 1))
sketch10.addConstraint(Sketcher.Constraint("Coincident", 12, 2, 13, 1))
sketch10.addConstraint(Sketcher.Constraint("Coincident", 13, 2, 14, 1))
sketch10.addConstraint(Sketcher.Constraint("Coincident", 14, 2, 15, 1))
sketch10.addConstraint(Sketcher.Constraint("Coincident", 15, 2, 16, 1))
sketch10.addConstraint(Sketcher.Constraint("Coincident", 16, 2, 17, 1))
sketch10.addConstraint(Sketcher.Constraint("Coincident", 17, 2, 12, 1))
sketch10.addConstraint(Sketcher.Constraint("Coincident", 18, 2, 19, 1))
sketch10.addConstraint(Sketcher.Constraint("Coincident", 19, 2, 20, 1))
sketch10.addConstraint(Sketcher.Constraint("Coincident", 20, 2, 21, 1))
sketch10.addConstraint(Sketcher.Constraint("Coincident", 21, 2, 22, 1))
sketch10.addConstraint(Sketcher.Constraint("Coincident", 22, 2, 23, 1))
sketch10.addConstraint(Sketcher.Constraint("Coincident", 23, 2, 18, 1))
sketch10.addConstraint(Sketcher.Constraint("Horizontal", 1))
sketch10.addConstraint(Sketcher.Constraint("Horizontal", 4))
sketch10.addConstraint(Sketcher.Constraint("Horizontal", 7))
sketch10.addConstraint(Sketcher.Constraint("Horizontal", 10))
sketch10.addConstraint(Sketcher.Constraint("Horizontal", 13))
sketch10.addConstraint(Sketcher.Constraint("Horizontal", 16))
sketch10.addConstraint(Sketcher.Constraint("Horizontal", 19))
sketch10.addConstraint(Sketcher.Constraint("Horizontal", 22))
sketch10.addConstraint(Sketcher.Constraint("Symmetric", 7, 2, 12, 2, -2))
sketch10.addConstraint(Sketcher.Constraint("Symmetric", 11, 2, 14, 2, -2))
sketch10.addConstraint(Sketcher.Constraint("Symmetric", 10, 2, 15, 2, -2))
sketch10.addConstraint(Sketcher.Constraint("Symmetric", 8, 2, 17, 2, -2))
sketch10.addConstraint(Sketcher.Constraint("Symmetric", 1, 2, 18, 2, -2))
sketch10.addConstraint(Sketcher.Constraint("Symmetric", 5, 2, 20, 2, -2))
sketch10.addConstraint(Sketcher.Constraint("Symmetric", 4, 2, 21, 2, -2))
sketch10.addConstraint(Sketcher.Constraint("Symmetric", 2, 2, 23, 2, -2))
sketch10.addConstraint(Sketcher.Constraint("Parallel", 0, 3))
sketch10.addConstraint(Sketcher.Constraint("Parallel", 2, 5))
sketch10.addConstraint(Sketcher.Constraint("Parallel", 3, 6))
sketch10.addConstraint(Sketcher.Constraint("Parallel", 5, 8))
sketch10.addConstraint(Sketcher.Constraint("Parallel", 6, 9))
sketch10.addConstraint(Sketcher.Constraint("Parallel", 8, 11))
sketch10.addConstraint(Sketcher.Constraint("Parallel", 9, 12))
sketch10.addConstraint(Sketcher.Constraint("Parallel", 11, 14))
sketch10.addConstraint(Sketcher.Constraint("Parallel", 14, 17))
sketch10.addConstraint(Sketcher.Constraint("Parallel", 17, 20))
sketch10.addConstraint(Sketcher.Constraint("Parallel", 20, 23))
sketch10.addConstraint(Sketcher.Constraint("Horizontal", 2, 2, 5, 2))
sketch10.addConstraint(Sketcher.Constraint("Horizontal", 8, 2, 11, 2))
sketch10.addConstraint(Sketcher.Constraint("Vertical", 1, 2, 3, 2))
sketch10.addConstraint(Sketcher.Constraint("Vertical", 4, 2, 6, 2))
sketch10.addConstraint(Sketcher.Constraint("Vertical", 3, 2, 7, 2))
sketch10.addConstraint(Sketcher.Constraint("Vertical", 2, 2, 8, 2))
sketch10.addConstraint(Sketcher.Constraint("Vertical", 7, 2, 9, 2))
sketch10.addConstraint(Sketcher.Constraint("Angle", 0, Q("-60 deg")))
sketch10.addConstraint(Sketcher.Constraint("DistanceX", 1, 1, 1, 2, Q("3.5 mm")))
sketch10.addConstraint(Sketcher.Constraint("DistanceY", -1, 1, 2, 2, Q("5 mm")))
sketch10.addConstraint(Sketcher.Constraint("DistanceY", -1, 1, 8, 2, Q("25 mm")))
sketch10.addConstraint(Sketcher.Constraint("DistanceX", 5, 2, 2, 2, Q("7 mm")))
sketch10.addConstraint(Sketcher.Constraint("DistanceX", 6, 2, 12, 2, Q("20 mm")))
pocket5 = doc.addObject("PartDesign::Pocket", "Pocket004")
body.addObject(pocket5)
pocket5.Profile = sketch10
pocket5.Length = 2.2

doc.recompute()
